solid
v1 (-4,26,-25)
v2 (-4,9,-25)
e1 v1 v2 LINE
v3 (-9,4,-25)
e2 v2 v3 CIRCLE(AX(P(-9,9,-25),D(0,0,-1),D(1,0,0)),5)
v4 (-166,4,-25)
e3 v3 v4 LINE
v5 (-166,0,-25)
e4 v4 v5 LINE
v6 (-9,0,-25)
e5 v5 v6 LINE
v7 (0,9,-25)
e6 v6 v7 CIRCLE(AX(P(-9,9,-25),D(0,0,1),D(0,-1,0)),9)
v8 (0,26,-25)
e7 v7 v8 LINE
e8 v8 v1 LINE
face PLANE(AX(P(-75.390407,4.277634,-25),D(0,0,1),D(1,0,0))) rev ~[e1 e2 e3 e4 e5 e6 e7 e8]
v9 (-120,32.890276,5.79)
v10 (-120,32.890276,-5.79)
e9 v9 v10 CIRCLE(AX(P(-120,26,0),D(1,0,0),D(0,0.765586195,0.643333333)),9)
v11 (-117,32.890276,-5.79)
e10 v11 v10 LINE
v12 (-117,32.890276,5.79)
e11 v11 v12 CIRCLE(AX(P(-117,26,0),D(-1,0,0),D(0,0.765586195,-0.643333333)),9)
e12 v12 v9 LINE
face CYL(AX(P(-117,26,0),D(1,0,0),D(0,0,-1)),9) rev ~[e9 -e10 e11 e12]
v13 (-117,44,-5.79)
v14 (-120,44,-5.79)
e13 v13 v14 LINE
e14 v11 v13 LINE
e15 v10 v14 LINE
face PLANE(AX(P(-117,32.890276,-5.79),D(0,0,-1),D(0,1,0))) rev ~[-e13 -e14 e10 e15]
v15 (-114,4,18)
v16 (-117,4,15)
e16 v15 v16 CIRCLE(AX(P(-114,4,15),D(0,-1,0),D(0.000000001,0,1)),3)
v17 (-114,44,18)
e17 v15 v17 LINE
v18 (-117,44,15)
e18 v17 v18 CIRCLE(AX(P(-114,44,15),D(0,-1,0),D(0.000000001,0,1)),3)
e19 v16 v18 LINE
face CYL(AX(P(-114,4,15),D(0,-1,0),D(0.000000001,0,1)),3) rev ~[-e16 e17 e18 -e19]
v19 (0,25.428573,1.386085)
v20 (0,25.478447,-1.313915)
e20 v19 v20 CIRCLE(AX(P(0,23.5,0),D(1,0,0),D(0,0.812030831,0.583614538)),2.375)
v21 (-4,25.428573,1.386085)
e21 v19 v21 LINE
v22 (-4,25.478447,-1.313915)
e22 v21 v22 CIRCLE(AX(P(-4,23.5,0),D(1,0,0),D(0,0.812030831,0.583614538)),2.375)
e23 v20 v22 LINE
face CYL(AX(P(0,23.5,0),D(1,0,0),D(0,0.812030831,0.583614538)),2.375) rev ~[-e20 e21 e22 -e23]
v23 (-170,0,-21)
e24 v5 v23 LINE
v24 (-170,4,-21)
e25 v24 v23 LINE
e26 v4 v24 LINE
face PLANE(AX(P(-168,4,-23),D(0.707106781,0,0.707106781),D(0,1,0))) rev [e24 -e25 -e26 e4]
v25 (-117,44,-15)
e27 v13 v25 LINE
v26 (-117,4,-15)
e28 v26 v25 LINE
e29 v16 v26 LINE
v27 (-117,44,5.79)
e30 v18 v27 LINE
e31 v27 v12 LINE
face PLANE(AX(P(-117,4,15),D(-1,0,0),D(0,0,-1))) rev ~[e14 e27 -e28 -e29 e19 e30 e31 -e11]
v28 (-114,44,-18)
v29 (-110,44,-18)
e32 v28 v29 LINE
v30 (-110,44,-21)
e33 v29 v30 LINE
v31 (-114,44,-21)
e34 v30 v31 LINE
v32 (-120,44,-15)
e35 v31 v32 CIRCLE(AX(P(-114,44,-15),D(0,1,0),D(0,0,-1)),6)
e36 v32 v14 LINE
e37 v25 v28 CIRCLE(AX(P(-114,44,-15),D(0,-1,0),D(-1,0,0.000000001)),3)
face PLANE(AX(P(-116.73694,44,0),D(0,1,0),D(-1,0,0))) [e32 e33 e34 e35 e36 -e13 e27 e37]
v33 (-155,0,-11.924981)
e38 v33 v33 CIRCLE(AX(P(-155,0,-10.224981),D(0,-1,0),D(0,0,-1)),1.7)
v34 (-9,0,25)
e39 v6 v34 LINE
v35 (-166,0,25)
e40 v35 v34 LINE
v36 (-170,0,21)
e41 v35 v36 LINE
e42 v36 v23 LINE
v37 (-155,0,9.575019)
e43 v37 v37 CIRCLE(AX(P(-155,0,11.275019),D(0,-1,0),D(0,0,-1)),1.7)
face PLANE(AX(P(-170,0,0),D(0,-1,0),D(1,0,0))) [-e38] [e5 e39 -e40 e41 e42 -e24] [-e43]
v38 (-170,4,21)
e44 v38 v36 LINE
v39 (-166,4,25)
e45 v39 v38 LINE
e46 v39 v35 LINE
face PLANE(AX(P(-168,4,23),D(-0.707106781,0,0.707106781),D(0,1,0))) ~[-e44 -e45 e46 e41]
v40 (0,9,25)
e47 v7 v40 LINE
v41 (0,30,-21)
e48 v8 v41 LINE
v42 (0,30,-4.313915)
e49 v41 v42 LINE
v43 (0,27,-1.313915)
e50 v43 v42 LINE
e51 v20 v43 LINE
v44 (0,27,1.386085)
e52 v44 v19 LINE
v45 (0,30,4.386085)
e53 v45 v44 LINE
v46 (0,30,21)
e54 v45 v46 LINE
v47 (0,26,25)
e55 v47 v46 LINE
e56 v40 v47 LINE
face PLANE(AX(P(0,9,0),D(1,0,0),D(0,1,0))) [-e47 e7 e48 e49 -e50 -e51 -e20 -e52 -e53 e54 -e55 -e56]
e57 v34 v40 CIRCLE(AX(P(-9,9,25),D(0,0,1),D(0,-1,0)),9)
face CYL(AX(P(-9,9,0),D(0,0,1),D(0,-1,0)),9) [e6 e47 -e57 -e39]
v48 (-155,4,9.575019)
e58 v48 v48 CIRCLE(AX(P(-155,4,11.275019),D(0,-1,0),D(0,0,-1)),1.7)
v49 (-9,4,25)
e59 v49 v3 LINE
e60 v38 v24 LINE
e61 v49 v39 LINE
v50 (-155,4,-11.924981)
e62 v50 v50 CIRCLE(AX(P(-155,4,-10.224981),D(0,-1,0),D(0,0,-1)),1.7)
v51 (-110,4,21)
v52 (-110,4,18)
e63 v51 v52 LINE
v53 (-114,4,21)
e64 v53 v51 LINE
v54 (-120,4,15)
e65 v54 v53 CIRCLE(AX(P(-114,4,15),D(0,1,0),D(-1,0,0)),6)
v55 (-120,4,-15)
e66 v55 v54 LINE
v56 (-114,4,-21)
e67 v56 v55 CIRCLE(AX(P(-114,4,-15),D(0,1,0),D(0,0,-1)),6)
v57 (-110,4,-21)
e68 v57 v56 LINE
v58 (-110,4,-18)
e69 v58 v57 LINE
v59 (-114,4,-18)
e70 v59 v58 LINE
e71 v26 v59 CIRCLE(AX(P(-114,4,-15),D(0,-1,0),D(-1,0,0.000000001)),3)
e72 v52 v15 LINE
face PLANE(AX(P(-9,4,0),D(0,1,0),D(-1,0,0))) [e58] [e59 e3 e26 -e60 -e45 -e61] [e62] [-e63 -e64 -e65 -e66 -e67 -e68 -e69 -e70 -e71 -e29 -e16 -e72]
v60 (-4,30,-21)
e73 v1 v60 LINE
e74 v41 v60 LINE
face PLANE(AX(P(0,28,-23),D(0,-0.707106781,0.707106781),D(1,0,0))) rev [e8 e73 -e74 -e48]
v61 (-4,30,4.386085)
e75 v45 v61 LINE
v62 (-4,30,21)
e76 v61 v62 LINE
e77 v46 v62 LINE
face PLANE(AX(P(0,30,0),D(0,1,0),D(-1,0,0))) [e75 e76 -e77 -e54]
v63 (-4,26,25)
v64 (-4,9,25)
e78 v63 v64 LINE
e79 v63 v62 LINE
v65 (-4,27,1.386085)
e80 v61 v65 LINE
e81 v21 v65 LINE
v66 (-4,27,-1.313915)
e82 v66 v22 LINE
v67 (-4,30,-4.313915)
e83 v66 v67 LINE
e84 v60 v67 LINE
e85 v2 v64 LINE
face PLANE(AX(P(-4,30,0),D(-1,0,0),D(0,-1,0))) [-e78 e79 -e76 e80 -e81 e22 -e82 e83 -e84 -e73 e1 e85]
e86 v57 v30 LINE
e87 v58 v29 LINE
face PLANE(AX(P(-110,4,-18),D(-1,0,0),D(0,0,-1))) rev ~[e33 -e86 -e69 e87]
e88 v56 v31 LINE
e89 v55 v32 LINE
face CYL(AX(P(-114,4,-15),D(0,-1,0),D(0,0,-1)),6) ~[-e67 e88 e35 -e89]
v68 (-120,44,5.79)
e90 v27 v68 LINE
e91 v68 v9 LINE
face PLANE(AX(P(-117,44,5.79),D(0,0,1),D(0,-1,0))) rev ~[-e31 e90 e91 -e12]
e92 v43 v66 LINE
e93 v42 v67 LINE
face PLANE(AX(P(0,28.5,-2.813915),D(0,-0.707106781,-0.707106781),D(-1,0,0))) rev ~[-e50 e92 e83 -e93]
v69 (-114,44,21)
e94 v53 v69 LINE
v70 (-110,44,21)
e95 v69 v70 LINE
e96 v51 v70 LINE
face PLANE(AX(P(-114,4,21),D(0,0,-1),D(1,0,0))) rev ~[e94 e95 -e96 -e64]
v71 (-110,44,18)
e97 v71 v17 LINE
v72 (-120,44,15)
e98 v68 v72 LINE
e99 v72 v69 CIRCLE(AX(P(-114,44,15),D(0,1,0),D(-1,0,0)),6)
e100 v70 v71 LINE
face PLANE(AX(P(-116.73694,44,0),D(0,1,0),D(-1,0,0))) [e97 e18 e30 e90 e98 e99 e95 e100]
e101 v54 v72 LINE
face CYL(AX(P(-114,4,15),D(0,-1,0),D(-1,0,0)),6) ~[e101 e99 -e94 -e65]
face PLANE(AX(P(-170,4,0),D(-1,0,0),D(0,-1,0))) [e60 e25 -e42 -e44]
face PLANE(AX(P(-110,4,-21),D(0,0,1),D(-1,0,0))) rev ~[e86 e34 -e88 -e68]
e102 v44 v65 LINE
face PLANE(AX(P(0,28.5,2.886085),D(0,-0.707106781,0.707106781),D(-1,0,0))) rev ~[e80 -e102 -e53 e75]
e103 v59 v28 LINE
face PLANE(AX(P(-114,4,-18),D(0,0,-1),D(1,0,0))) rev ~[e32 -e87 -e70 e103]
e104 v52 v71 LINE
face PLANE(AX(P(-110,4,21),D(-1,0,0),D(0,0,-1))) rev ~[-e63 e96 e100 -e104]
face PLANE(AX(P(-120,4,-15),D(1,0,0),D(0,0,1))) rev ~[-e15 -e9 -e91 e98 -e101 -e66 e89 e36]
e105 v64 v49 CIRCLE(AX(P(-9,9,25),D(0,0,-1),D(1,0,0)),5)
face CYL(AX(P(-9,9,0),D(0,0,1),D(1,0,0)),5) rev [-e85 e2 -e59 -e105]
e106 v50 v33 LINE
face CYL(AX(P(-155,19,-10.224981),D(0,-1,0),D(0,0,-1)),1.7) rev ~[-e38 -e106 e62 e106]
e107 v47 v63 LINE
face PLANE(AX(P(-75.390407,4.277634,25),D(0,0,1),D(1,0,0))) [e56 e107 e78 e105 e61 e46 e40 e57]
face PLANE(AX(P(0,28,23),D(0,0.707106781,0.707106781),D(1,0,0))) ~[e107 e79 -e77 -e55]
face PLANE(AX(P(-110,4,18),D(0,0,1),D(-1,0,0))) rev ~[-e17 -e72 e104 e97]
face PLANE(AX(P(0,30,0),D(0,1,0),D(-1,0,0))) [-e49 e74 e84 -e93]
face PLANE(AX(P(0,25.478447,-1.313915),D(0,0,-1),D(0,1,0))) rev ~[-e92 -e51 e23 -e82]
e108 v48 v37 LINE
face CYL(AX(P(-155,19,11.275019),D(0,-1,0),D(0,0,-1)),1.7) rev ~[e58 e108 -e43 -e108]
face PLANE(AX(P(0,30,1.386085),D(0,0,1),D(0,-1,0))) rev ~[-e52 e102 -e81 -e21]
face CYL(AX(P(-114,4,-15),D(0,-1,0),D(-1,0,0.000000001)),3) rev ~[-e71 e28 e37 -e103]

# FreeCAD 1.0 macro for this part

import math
import FreeCAD as App
import Part
import Sketcher
Q = App.Units.Quantity


def edges_at(feature, points):
    """Names of the edges that pass closest to the given points."""
    edges = feature.Shape.Edges
    near = lambda p: min(range(len(edges)), key=lambda i: edges[i].distToShape(Part.Vertex(*p))[0])
    return sorted({f"Edge{near(p) + 1}" for p in points})

doc = App.newDocument("Part")
params = doc.addObject("Spreadsheet::Sheet", "Params")
for row, (alias, value) in enumerate([
    ("sketch1_radius", "9 mm"),
    ("sketch1_radius2", "5 mm"),
    ("sketch1_width", "161 mm"),
    ("sketch1_height", "21 mm"),
    ("pad1_length", "50 mm"),
    ("sketch2_radius", "6 mm"),
    ("sketch2_radius2", "3 mm"),
    ("sketch2_width", "4 mm"),
    ("sketch2_height", "30 mm"),
    ("pad2_length", "40 mm"),
    ("sketch3_diameter", "18 mm"),
    ("chamfer_size", "4 mm"),
    ("sketch4_height", "2.7 mm"),
    ("pocket2_length", "10 mm"),
    ("chamfer2_size", "3 mm"),
    ("sketch5_radius", "9 mm"),
    ("sketch5_height", "11.58 mm"),
    ("pocket3_length", "3 mm"),
    ("sketch6_diameter", "3.4 mm"),
    ("hole_diameter", "3.4 mm"),
    ("hole_depth", "15 mm"),
], start=1):
    params.set(f"A{row}", alias)
    params.set(f"B{row}", "=" + value)
    params.setAlias(f"B{row}", alias)

body = doc.addObject("PartDesign::Body", "Body")

# Sketch on XY plane
sketch1 = doc.addObject("Sketcher::SketchObject", "Sketch")
body.addObject(sketch1)
sketch1.AttachmentSupport = (doc.XY_Plane, [""])
sketch1.MapMode = "FlatFace"
sketch1.addGeometry([
    Part.LineSegment(App.Vector(-170, 0, 0), App.Vector(-9, 0, 0)),  # 0
    Part.ArcOfCircle(Part.Circle(App.Vector(-9, 9, 0), App.Vector(0, 0, 1), 9), math.radians(-90), math.radians(0)),  # 1
    Part.LineSegment(App.Vector(0, 9, 0), App.Vector(0, 30, 0)),  # 2
    Part.LineSegment(App.Vector(0, 30, 0), App.Vector(-4, 30, 0)),  # 3
    Part.LineSegment(App.Vector(-4, 30, 0), App.Vector(-4, 9, 0)),  # 4
    Part.ArcOfCircle(Part.Circle(App.Vector(-9, 9, 0), App.Vector(0, 0, 1), 5), math.radians(-90), math.radians(0)),  # 5
    Part.LineSegment(App.Vector(-9, 4, 0), App.Vector(-170, 4, 0)),  # 6
    Part.LineSegment(App.Vector(-170, 4, 0), App.Vector(-170, 0, 0)),  # 7
], False)
sketch1.addConstraint([
    Sketcher.Constraint("Tangent", 0, 2, 1, 1),
    Sketcher.Constraint("Tangent", 1, 2, 2, 1),
    Sketcher.Constraint("Coincident", 2, 2, 3, 1),
    Sketcher.Constraint("Coincident", 3, 2, 4, 1),
    Sketcher.Constraint("Tangent", 4, 2, 5, 2),
    Sketcher.Constraint("Tangent", 5, 1, 6, 1),
    Sketcher.Constraint("Coincident", 6, 2, 7, 1),
    Sketcher.Constraint("Coincident", 7, 2, 0, 1),
    Sketcher.Constraint("Horizontal", 0),
    Sketcher.Constraint("Vertical", 2),
    Sketcher.Constraint("Horizontal", 3),
    Sketcher.Constraint("Vertical", 4),
    Sketcher.Constraint("Horizontal", 6),
    Sketcher.Constraint("Vertical", 7),
    Sketcher.Constraint("Coincident", 5, 3, 1, 3),
    Sketcher.Constraint("PointOnObject", 0, 2, -1),
    Sketcher.Constraint("PointOnObject", 1, 2, -2),
    Sketcher.Constraint("Radius", 1, Q("9 mm")),
    Sketcher.Constraint("Radius", 5, Q("5 mm")),
    Sketcher.Constraint("DistanceX", 0, 1, 0, 2, Q("161 mm")),
    Sketcher.Constraint("DistanceY", 2, 1, 2, 2, Q("21 mm")),
])
sketch1.setExpression("Constraints[17]", "Params.sketch1_radius")
sketch1.setExpression("Constraints[18]", "Params.sketch1_radius2")
sketch1.setExpression("Constraints[19]", "Params.sketch1_width")
sketch1.setExpression("Constraints[20]", "Params.sketch1_height")
pad1 = doc.addObject("PartDesign::Pad", "Pad")
body.addObject(pad1)
pad1.Profile = sketch1
pad1.setExpression("Length", "Params.pad1_length")
pad1.Midplane = True

# Sketch on XZ plane
sketch2 = doc.addObject("Sketcher::SketchObject", "Sketch001")
body.addObject(sketch2)
sketch2.AttachmentSupport = (doc.XZ_Plane, [""])
sketch2.MapMode = "FlatFace"
sketch2.AttachmentOffset = App.Placement(App.Vector(0, 0, -4), App.Rotation())
sketch2.addGeometry([
    Part.LineSegment(App.Vector(-110, -21, 0), App.Vector(-114, -21, 0)),  # 0
    Part.ArcOfCircle(Part.Circle(App.Vector(-114, -15, 0), App.Vector(0, 0, 1), 6), math.radians(180), math.radians(270)),  # 1
    Part.LineSegment(App.Vector(-120, -15, 0), App.Vector(-120, 15, 0)),  # 2
    Part.ArcOfCircle(Part.Circle(App.Vector(-114, 15, 0), App.Vector(0, 0, 1), 6), math.radians(90), math.radians(180)),  # 3
    Part.LineSegment(App.Vector(-114, 21, 0), App.Vector(-110, 21, 0)),  # 4
    Part.LineSegment(App.Vector(-110, 21, 0), App.Vector(-110, 18, 0)),  # 5
    Part.LineSegment(App.Vector(-110, 18, 0), App.Vector(-114, 18, 0)),  # 6
    Part.ArcOfCircle(Part.Circle(App.Vector(-114, 15, 0), App.Vector(0, 0, 1), 3), math.radians(90), math.radians(180)),  # 7
    Part.LineSegment(App.Vector(-117, 15, 0), App.Vector(-117, -15, 0)),  # 8
    Part.ArcOfCircle(Part.Circle(App.Vector(-114, -15, 0), App.Vector(0, 0, 1), 3), math.radians(180), math.radians(270)),  # 9
    Part.LineSegment(App.Vector(-114, -18, 0), App.Vector(-110, -18, 0)),  # 10
    Part.LineSegment(App.Vector(-110, -18, 0), App.Vector(-110, -21, 0)),  # 11
], False)
sketch2.addConstraint([
    Sketcher.Constraint("Tangent", 0, 2, 1, 2),
    Sketcher.Constraint("Tangent", 1, 1, 2, 1),
    Sketcher.Constraint("Tangent", 2, 2, 3, 2),
    Sketcher.Constraint("Tangent", 3, 1, 4, 1),
    Sketcher.Constraint("Coincident", 4, 2, 5, 1),
    Sketcher.Constraint("Coincident", 5, 2, 6, 1),
    Sketcher.Constraint("Tangent", 6, 2, 7, 1),
    Sketcher.Constraint("Tangent", 7, 2, 8, 1),
    Sketcher.Constraint("Tangent", 8, 2, 9, 1),
    Sketcher.Constraint("Tangent", 9, 2, 10, 1),
    Sketcher.Constraint("Coincident", 10, 2, 11, 1),
    Sketcher.Constraint("Coincident", 11, 2, 0, 1),
    Sketcher.Constraint("Horizontal", 0),
    Sketcher.Constraint("Vertical", 2),
    Sketcher.Constraint("Horizontal", 4),
    Sketcher.Constraint("Vertical", 5),
    Sketcher.Constraint("Horizontal", 6),
    Sketcher.Constraint("Vertical", 8),
    Sketcher.Constraint("Horizontal", 10),
    Sketcher.Constraint("Vertical", 11),
    Sketcher.Constraint("Coincident", 7, 3, 3, 3),
    Sketcher.Constraint("Coincident", 9, 3, 1, 3),
    Sketcher.Constraint("Equal", 1, 3),
    Sketcher.Constraint("Symmetric", 5, 2, 10, 2, -1),
    Sketcher.Constraint("Radius", 1, Q("6 mm")),
    Sketcher.Constraint("Radius", 7, Q("3 mm")),
    Sketcher.Constraint("DistanceX", 0, 2, 0, 1, Q("4 mm")),
    Sketcher.Constraint("DistanceY", 2, 1, 2, 2, Q("30 mm")),
    Sketcher.Constraint("DistanceX", 1, 3, -1, 1, Q("114 mm")),
])
sketch2.setExpression("Constraints[24]", "Params.sketch2_radius")
sketch2.setExpression("Constraints[25]", "Params.sketch2_radius2")
sketch2.setExpression("Constraints[26]", "Params.sketch2_width")
sketch2.setExpression("Constraints[27]", "Params.sketch2_height")
pad2 = doc.addObject("PartDesign::Pad", "Pad001")
body.addObject(pad2)
pad2.Profile = sketch2
pad2.setExpression("Length", "Params.pad2_length")
pad2.Reversed = True

# Sketch on YZ plane
sketch3 = doc.addObject("Sketcher::SketchObject", "Sketch002")
body.addObject(sketch3)
sketch3.AttachmentSupport = (doc.YZ_Plane, [""])
sketch3.MapMode = "FlatFace"
sketch3.AttachmentOffset = App.Placement(App.Vector(0, 0, -117), App.Rotation())
sketch3.addGeometry(Part.Circle(App.Vector(26, 0, 0), App.Vector(0, 0, 1), 9), False)
sketch3.addConstraint([
    Sketcher.Constraint("PointOnObject", 0, 3, -1),
    Sketcher.Constraint("Diameter", 0, Q("18 mm")),
    Sketcher.Constraint("DistanceX", -1, 1, 0, 3, Q("26 mm")),
])
sketch3.setExpression("Constraints[1]", "Params.sketch3_diameter")
pocket1 = doc.addObject("PartDesign::Pocket", "Pocket")
body.addObject(pocket1)
pocket1.Profile = sketch3
pocket1.Type = "UpToFirst"
doc.recompute()

chamfer = doc.addObject("PartDesign::Chamfer", "Chamfer")
body.addObject(chamfer)
chamfer.Base = (pocket1, edges_at(pocket1, [
    (-170, 2, 25),
    (-170, 2, -25),
    (-2, 30, 25),
    (-2, 30, -25),
]))
chamfer.setExpression("Size", "Params.chamfer_size")

# Sketch on YZ plane
sketch4 = doc.addObject("Sketcher::SketchObject", "Sketch003")
body.addObject(sketch4)
sketch4.AttachmentSupport = (doc.YZ_Plane, [""])
sketch4.MapMode = "FlatFace"
sketch4.addGeometry([
    Part.LineSegment(App.Vector(25.5, -1.3, 0), App.Vector(30, -1.3, 0)),
    Part.LineSegment(App.Vector(30, -1.3, 0), App.Vector(30, 1.4, 0)),
    Part.LineSegment(App.Vector(30, 1.4, 0), App.Vector(25.4, 1.4, 0)),
    Part.ArcOfCircle(Part.Circle(App.Vector(23.5, 0, 0), App.Vector(0, 0, 1), 2.4), math.radians(36), math.radians(326)),
], False)
sketch4.addConstraint([
    Sketcher.Constraint("Coincident", 0, 2, 1, 1),
    Sketcher.Constraint("Coincident", 1, 2, 2, 1),
    Sketcher.Constraint("Coincident", 2, 2, 3, 1),
    Sketcher.Constraint("Coincident", 3, 2, 0, 1),
    Sketcher.Constraint("Horizontal", 0),
    Sketcher.Constraint("Vertical", 1),
    Sketcher.Constraint("Horizontal", 2),
    Sketcher.Constraint("PointOnObject", 3, 3, -1),
    Sketcher.Constraint("DistanceY", 1, 1, 1, 2, Q("2.7 mm")),
    Sketcher.Constraint("DistanceX", -1, 1, 0, 2, Q("30 mm")),
    Sketcher.Constraint("Radius", 3, Q("2.375 mm")),
    Sketcher.Constraint("DistanceX", -1, 1, 3, 3, Q("23.5 mm")),
    Sketcher.Constraint("DistanceX", 0, 1, 0, 2, Q("4.521553 mm")),
])
sketch4.setExpression("Constraints[8]", "Params.sketch4_height")
pocket2 = doc.addObject("PartDesign::Pocket", "Pocket001")
body.addObject(pocket2)
pocket2.Profile = sketch4
pocket2.setExpression("Length", "Params.pocket2_length")
doc.recompute()

chamfer2 = doc.addObject("PartDesign::Chamfer", "Chamfer001")
body.addObject(chamfer2)
chamfer2.Base = (pocket2, edges_at(pocket2, [(-2, 30, 1.386), (-2, 30, -1.314)]))
chamfer2.setExpression("Size", "Params.chamfer2_size")

# Sketch on YZ plane
sketch5 = doc.addObject("Sketcher::SketchObject", "Sketch004")
body.addObject(sketch5)
sketch5.AttachmentSupport = (doc.YZ_Plane, [""])
sketch5.MapMode = "FlatFace"
sketch5.AttachmentOffset = App.Placement(App.Vector(0, 0, -117), App.Rotation())
sketch5.addGeometry([
    Part.LineSegment(App.Vector(44, -6, 0), App.Vector(44, 6, 0)),
    Part.LineSegment(App.Vector(44, 6, 0), App.Vector(33, 6, 0)),
    Part.ArcOfCircle(Part.Circle(App.Vector(26, 0, 0), App.Vector(0, 0, 1), 9), math.radians(-40), math.radians(40)),
    Part.LineSegment(App.Vector(33, -6, 0), App.Vector(44, -6, 0)),
], False)
sketch5.addConstraint([
    Sketcher.Constraint("Coincident", 0, 2, 1, 1),
    Sketcher.Constraint("Coincident", 1, 2, 2, 2),
    Sketcher.Constraint("Coincident", 2, 1, 3, 1),
    Sketcher.Constraint("Coincident", 3, 2, 0, 1),
    Sketcher.Constraint("Vertical", 0),
    Sketcher.Constraint("Horizontal", 1),
    Sketcher.Constraint("Horizontal", 3),
    Sketcher.Constraint("Symmetric", 1, 2, 2, 1, -1),
    Sketcher.Constraint("Radius", 2, Q("9 mm")),
    Sketcher.Constraint("DistanceX", -1, 1, 2, 3, Q("26 mm")),
    Sketcher.Constraint("DistanceX", -1, 1, 0, 2, Q("44 mm")),
    Sketcher.Constraint("DistanceY", 0, 1, 0, 2, Q("11.58 mm")),
])
sketch5.setExpression("Constraints[8]", "Params.sketch5_radius")
sketch5.setExpression("Constraints[11]", "Params.sketch5_height")
pocket3 = doc.addObject("PartDesign::Pocket", "Pocket002")
body.addObject(pocket3)
pocket3.Profile = sketch5
pocket3.setExpression("Length", "Params.pocket3_length")

# Sketch on XZ plane
sketch6 = doc.addObject("Sketcher::SketchObject", "Sketch005")
body.addObject(sketch6)
sketch6.AttachmentSupport = (doc.XZ_Plane, [""])
sketch6.MapMode = "FlatFace"
sketch6.AttachmentOffset = App.Placement(App.Vector(0, 0, -4), App.Rotation())
sketch6.addGeometry([
    Part.Circle(App.Vector(-155, -10.2, 0), App.Vector(0, 0, 1), 1.7),
    Part.Circle(App.Vector(-155, 11.3, 0), App.Vector(0, 0, 1), 1.7),
], False)
sketch6.addConstraint([
    Sketcher.Constraint("Equal", 0, 1),
    Sketcher.Constraint("Vertical", 0, 3, 1, 3),
    Sketcher.Constraint("Diameter", 0, Q("3.4 mm")),
    Sketcher.Constraint("DistanceX", 0, 3, -1, 1, Q("155 mm")),
    Sketcher.Constraint("DistanceY", 0, 3, 1, 3, Q("21.5 mm")),
    Sketcher.Constraint("DistanceY", 0, 3, -1, 1, Q("10.224981 mm")),
])
sketch6.setExpression("Constraints[2]", "Params.sketch6_diameter")
doc.recompute()
hole = doc.addObject("PartDesign::Hole", "Hole")
body.addObject(hole)
hole.Profile = sketch6
hole.ThreadType = "None"
hole.setExpression("Diameter", "Params.hole_diameter")
hole.DepthType = "Dimension"
hole.setExpression("Depth", "Params.hole_depth")
hole.DrillPoint = "Angled"
hole.DrillPointAngle = 118
hole.Reversed = True

doc.recompute()
